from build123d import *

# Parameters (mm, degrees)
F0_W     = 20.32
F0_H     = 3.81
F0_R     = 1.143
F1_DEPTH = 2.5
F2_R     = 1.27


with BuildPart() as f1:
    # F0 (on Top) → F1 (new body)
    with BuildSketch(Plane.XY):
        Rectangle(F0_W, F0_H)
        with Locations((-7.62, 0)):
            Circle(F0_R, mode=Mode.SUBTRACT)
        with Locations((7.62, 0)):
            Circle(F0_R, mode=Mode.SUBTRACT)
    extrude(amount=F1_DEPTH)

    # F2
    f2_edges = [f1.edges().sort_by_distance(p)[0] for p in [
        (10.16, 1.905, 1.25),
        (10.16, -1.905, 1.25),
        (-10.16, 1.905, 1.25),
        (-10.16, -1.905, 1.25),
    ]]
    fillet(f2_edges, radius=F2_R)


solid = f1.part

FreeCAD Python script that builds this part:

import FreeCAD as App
import Part
import Sketcher
Q = App.Units.Quantity


def edges_at(feature, points):
    """Names of the edges that pass closest to the given points."""
    edges = feature.Shape.Edges
    near = lambda p: min(range(len(edges)), key=lambda i: edges[i].distToShape(Part.Vertex(*p))[0])
    return sorted({f"Edge{near(p) + 1}" for p in points})


def add_polygon(sketch, points):
    """Adds a closed chain of lines whose ends are joined by coincident constraints."""
    first, n = sketch.GeometryCount, len(points)
    for a, b in zip(points, points[1:] + points[:1]):
        sketch.addGeometry(Part.LineSegment(App.Vector(*a, 0), App.Vector(*b, 0)), False)
    for i in range(n):
        sketch.addConstraint(Sketcher.Constraint("Coincident", first + i, 2, first + (i + 1) % n, 1))

doc = App.newDocument("Part")
body = doc.addObject("PartDesign::Body", "Body")

sketch1 = doc.addObject("Sketcher::SketchObject", "Sketch")
body.addObject(sketch1)
sketch1.AttachmentSupport = (doc.XY_Plane, [""])
sketch1.MapMode = "FlatFace"
add_polygon(sketch1, [(-10.16, 1.905), (-10.16, -1.905), (10.16, -1.905), (10.16, 1.905)])
sketch1.addGeometry(Part.Circle(App.Vector(-7.62, 0, 0), App.Vector(0, 0, 1), 1.143), False)
sketch1.addGeometry(Part.Circle(App.Vector(7.62, 0, 0), App.Vector(0, 0, 1), 1.143), False)
sketch1.addConstraint(Sketcher.Constraint("Vertical", 0))
sketch1.addConstraint(Sketcher.Constraint("Horizontal", 1))
sketch1.addConstraint(Sketcher.Constraint("Vertical", 2))
sketch1.addConstraint(Sketcher.Constraint("Horizontal", 3))
sketch1.addConstraint(Sketcher.Constraint("Equal", 4, 5))
sketch1.addConstraint(Sketcher.Constraint("Symmetric", 4, 3, 5, 3, -1, 1))
sketch1.addConstraint(Sketcher.Constraint("Symmetric", 0, 2, 2, 2, -1, 1))
sketch1.addConstraint(Sketcher.Constraint("PointOnObject", 4, 3, -1))
sketch1.addConstraint(Sketcher.Constraint("Diameter", 4, Q("0.09 in")))
sketch1.addConstraint(Sketcher.Constraint("DistanceX", 1, 1, 1, 2, Q("0.8 in")))
sketch1.addConstraint(Sketcher.Constraint("DistanceY", 0, 2, 0, 1, Q("0.15 in")))
sketch1.addConstraint(Sketcher.Constraint("DistanceX", 4, 3, -1, 1, Q("0.3 in")))
pad1 = doc.addObject("PartDesign::Pad", "Pad")
body.addObject(pad1)
pad1.Profile = sketch1
pad1.Length = 2.5
doc.recompute()

fillet = doc.addObject("PartDesign::Fillet", "Fillet")
body.addObject(fillet)
fillet.Base = (pad1, edges_at(pad1, [
    (10.16, 1.905, 1.25),
    (10.16, -1.905, 1.25),
    (-10.16, 1.905, 1.25),
    (-10.16, -1.905, 1.25),
]))
fillet.Radius = Q("0.05 in")

doc.recompute()
